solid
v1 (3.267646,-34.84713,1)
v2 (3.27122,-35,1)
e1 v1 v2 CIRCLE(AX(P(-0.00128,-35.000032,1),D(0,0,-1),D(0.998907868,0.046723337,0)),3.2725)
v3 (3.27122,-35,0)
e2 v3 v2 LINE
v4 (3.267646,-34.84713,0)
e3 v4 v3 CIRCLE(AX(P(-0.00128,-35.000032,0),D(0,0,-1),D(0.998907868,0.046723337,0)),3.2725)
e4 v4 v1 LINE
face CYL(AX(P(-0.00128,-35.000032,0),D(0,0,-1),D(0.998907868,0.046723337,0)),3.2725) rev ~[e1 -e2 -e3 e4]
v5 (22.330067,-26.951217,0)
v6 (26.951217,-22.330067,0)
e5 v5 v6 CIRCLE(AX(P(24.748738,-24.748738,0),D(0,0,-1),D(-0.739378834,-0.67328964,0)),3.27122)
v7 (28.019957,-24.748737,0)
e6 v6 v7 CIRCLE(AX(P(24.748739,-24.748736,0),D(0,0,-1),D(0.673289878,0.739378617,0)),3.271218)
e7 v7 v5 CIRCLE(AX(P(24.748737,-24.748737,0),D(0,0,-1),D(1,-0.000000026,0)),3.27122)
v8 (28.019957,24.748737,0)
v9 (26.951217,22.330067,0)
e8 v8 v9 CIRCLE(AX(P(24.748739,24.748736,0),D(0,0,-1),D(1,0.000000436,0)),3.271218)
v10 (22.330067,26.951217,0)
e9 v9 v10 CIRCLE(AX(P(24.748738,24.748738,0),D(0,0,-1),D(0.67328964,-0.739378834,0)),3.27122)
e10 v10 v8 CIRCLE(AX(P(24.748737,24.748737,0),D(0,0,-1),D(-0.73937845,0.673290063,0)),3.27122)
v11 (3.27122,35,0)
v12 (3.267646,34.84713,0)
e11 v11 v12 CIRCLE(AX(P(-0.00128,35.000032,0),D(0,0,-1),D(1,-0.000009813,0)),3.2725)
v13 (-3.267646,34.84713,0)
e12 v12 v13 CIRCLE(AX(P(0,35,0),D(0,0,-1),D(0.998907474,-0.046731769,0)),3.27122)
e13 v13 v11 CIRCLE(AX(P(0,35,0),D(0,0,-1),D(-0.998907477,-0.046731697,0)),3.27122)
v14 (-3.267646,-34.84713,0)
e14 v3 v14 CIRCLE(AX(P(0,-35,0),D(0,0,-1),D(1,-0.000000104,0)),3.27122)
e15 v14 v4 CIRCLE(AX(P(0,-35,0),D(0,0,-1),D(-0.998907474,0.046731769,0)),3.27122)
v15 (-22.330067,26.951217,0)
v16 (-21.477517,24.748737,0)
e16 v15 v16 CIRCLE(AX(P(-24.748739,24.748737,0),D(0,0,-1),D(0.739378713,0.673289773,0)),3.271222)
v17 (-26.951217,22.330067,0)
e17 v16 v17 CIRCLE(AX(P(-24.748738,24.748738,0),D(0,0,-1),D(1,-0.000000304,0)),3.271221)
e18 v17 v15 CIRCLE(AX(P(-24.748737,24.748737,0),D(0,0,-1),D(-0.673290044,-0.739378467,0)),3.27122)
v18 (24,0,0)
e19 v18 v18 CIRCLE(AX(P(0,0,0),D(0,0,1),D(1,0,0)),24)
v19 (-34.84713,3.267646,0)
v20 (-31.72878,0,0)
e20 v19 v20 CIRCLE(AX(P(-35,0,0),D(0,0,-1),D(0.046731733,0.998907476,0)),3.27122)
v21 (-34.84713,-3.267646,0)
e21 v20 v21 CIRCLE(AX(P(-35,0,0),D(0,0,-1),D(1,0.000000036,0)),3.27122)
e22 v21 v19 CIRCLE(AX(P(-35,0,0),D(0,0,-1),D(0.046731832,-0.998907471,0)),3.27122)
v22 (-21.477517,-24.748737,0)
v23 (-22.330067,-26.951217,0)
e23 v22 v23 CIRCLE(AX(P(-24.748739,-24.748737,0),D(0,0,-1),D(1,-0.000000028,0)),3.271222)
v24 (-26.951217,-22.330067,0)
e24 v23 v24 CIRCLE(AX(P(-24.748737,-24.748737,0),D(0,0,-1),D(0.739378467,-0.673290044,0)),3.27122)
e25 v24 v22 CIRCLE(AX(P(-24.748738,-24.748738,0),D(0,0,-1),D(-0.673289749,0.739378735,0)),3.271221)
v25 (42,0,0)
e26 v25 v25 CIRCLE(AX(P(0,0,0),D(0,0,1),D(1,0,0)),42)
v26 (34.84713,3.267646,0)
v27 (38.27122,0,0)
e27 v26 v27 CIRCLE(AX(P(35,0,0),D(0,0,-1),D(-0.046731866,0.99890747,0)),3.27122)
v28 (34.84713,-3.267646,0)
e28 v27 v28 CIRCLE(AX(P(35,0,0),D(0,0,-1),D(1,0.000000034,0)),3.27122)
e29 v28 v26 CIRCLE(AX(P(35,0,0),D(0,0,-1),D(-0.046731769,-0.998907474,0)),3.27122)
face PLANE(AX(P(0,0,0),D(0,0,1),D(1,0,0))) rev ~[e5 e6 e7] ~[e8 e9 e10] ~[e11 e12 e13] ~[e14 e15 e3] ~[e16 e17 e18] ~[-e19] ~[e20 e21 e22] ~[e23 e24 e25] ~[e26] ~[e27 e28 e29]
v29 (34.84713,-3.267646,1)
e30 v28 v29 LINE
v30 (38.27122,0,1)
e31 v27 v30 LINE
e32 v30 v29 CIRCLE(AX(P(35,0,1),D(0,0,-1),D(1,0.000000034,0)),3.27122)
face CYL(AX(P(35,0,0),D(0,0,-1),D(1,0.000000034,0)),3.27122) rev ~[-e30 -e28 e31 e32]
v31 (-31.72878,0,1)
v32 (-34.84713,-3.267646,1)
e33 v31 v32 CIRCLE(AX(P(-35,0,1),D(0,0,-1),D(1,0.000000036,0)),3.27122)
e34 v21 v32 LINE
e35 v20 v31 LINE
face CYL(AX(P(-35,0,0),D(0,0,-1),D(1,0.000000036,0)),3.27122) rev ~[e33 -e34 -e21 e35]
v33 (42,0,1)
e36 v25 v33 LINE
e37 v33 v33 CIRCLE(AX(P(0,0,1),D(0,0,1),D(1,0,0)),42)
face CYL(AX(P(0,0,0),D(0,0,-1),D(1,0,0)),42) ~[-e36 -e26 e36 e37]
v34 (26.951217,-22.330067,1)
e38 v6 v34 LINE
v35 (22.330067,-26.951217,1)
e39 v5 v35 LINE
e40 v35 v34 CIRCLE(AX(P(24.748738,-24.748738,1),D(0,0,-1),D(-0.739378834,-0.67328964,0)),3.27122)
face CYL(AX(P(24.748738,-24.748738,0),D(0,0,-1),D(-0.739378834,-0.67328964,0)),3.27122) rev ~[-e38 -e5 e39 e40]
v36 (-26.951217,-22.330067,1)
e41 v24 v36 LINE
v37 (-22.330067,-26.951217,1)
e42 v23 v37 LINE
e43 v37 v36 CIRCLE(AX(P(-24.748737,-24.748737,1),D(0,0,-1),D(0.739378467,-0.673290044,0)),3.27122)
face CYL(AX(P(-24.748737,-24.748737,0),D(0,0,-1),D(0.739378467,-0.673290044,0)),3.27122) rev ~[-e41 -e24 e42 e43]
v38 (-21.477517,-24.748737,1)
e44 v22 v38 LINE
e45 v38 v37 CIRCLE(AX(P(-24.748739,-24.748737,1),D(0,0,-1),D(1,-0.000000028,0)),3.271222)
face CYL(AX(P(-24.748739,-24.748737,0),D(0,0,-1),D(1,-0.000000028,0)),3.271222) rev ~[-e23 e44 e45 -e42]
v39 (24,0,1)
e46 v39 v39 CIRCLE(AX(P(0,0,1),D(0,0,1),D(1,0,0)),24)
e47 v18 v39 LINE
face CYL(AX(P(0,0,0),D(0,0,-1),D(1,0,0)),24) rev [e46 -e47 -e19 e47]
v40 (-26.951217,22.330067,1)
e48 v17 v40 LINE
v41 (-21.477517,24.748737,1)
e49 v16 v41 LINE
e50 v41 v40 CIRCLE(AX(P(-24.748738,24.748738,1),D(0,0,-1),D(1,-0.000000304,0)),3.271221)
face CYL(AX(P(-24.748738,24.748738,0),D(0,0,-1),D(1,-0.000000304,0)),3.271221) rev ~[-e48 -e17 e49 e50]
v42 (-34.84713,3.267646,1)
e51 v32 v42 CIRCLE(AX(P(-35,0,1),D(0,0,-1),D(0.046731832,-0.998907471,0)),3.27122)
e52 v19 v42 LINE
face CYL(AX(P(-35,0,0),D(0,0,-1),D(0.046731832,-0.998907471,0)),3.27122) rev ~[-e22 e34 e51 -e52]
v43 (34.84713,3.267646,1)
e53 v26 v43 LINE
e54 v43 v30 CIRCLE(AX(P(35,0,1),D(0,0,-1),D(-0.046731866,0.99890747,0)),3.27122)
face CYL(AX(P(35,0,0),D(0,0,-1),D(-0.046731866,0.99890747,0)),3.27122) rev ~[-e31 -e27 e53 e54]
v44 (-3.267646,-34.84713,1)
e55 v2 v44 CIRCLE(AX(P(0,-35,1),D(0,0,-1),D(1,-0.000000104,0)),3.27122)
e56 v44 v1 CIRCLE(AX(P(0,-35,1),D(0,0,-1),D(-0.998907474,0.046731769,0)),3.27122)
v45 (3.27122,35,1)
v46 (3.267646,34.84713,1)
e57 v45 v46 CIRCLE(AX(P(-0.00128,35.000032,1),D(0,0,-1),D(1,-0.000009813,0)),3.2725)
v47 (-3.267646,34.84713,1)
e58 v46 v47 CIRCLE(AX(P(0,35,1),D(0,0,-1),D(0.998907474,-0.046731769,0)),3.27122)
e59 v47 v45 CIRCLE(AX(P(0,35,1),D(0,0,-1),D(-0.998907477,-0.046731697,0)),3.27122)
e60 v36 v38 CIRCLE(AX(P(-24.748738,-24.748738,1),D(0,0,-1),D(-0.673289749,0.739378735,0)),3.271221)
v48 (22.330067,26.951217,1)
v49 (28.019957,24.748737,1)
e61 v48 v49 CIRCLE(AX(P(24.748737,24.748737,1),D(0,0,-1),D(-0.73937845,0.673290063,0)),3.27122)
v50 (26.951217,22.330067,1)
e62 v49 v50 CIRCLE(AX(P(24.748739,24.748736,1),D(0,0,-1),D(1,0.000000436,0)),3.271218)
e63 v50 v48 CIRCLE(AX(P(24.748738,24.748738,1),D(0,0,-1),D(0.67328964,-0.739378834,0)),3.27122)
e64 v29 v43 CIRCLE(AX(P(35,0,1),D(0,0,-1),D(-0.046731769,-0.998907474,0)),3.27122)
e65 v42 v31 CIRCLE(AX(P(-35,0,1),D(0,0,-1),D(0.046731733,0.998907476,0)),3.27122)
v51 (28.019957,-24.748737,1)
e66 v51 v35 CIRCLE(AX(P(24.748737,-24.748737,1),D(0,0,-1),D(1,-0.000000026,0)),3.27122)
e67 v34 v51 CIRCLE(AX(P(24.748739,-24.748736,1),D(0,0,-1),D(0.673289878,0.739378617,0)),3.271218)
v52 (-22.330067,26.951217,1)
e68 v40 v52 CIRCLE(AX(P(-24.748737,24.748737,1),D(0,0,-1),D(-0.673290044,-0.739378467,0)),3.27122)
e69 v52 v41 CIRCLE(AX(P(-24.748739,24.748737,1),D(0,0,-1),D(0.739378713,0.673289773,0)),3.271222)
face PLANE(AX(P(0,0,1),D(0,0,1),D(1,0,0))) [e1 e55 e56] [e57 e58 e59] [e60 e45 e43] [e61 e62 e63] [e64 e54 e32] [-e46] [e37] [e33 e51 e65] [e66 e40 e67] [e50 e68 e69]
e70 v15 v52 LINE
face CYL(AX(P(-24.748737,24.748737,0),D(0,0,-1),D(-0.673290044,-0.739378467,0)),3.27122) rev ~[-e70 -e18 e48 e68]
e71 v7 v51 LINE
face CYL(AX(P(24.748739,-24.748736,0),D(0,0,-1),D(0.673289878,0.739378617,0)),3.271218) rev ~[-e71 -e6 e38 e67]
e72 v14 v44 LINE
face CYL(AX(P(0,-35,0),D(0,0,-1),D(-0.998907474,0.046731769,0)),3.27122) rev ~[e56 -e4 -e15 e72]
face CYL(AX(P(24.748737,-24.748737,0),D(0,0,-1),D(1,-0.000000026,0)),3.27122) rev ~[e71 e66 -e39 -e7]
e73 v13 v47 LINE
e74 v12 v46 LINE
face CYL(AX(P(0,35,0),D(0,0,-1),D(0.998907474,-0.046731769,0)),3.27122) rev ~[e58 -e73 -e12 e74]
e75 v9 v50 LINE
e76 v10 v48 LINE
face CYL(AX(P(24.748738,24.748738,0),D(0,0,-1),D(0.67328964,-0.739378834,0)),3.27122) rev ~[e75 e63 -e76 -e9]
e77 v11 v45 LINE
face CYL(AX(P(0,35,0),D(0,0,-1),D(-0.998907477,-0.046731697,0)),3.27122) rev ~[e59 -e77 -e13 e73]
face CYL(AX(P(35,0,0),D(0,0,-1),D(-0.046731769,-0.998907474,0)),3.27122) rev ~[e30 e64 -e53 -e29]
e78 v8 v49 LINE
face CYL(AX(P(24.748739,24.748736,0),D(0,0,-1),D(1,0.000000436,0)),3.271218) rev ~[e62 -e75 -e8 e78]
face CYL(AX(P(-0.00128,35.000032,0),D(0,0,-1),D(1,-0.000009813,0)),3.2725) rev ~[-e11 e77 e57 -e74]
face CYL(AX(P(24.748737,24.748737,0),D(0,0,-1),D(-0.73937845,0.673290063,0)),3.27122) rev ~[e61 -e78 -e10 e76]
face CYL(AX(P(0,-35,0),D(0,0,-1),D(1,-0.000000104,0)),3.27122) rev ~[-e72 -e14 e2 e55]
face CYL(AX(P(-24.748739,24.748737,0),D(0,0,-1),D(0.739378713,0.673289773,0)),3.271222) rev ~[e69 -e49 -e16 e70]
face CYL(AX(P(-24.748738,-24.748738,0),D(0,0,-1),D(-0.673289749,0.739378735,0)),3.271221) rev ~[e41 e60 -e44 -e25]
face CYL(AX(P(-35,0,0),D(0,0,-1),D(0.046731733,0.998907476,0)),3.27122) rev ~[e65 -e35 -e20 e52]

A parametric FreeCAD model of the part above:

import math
import FreeCAD as App
import Part
import Sketcher
from FreeCAD import Vector

doc = App.newDocument("Part")
body = doc.addObject("PartDesign::Body", "Body")

sketch1 = doc.addObject("Sketcher::SketchObject", "Sketch")
body.addObject(sketch1)
sketch1.AttachmentSupport = (doc.XY_Plane, [""])
sketch1.MapMode = "FlatFace"
sketch1.addGeometry([
    Part.Circle(Vector(0, 0, 0), Vector(0, 0, 1), 42),
    Part.ArcOfCircle(Part.Circle(Vector(-24.75, -24.75, 0), Vector(0, 0, 1), 3.27), math.radians(132), math.radians(318)),
    Part.ArcOfCircle(Part.Circle(Vector(-24.75, -24.75, 0), Vector(0, 0, 1), 3.27), math.radians(0), math.radians(132)),
    Part.ArcOfCircle(Part.Circle(Vector(-24.75, -24.75, 0), Vector(0, 0, 1), 3.27), math.radians(-42), math.radians(0)),
    Part.ArcOfCircle(Part.Circle(Vector(0, -35, 0), Vector(0, 0, 1), 3.27), math.radians(177), math.radians(360)),
    Part.ArcOfCircle(Part.Circle(Vector(0, -35, 0), Vector(0, 0, 1), 3.27), math.radians(3), math.radians(177)),
    Part.ArcOfCircle(Part.Circle(Vector(0, -35, 0), Vector(0, 0, 1), 3.27), math.radians(0), math.radians(2.68)),
    Part.ArcOfCircle(Part.Circle(Vector(24.75, -24.75, 0), Vector(0, 0, 1), 3.27), math.radians(-138), math.radians(0)),
    Part.ArcOfCircle(Part.Circle(Vector(24.75, -24.75, 0), Vector(0, 0, 1), 3.27), math.radians(48), math.radians(222)),
    Part.ArcOfCircle(Part.Circle(Vector(24.75, -24.75, 0), Vector(0, 0, 1), 3.27), math.radians(0), math.radians(48)),
    Part.ArcOfCircle(Part.Circle(Vector(-35, 0, 0), Vector(0, 0, 1), 3.27), math.radians(87), math.radians(273)),
    Part.ArcOfCircle(Part.Circle(Vector(-35, 0, 0), Vector(0, 0, 1), 3.27), math.radians(0), math.radians(87)),
    Part.ArcOfCircle(Part.Circle(Vector(-35, 0, 0), Vector(0, 0, 1), 3.27), math.radians(-87), math.radians(0)),
    Part.ArcOfCircle(Part.Circle(Vector(-24.75, 24.75, 0), Vector(0, 0, 1), 3.27), math.radians(42), math.radians(228)),
    Part.ArcOfCircle(Part.Circle(Vector(-24.75, 24.75, 0), Vector(0, 0, 1), 3.27), math.radians(0), math.radians(42)),
    Part.ArcOfCircle(Part.Circle(Vector(-24.75, 24.75, 0), Vector(0, 0, 1), 3.27), math.radians(-132), math.radians(0)),
    Part.Circle(Vector(0, 0, 0), Vector(0, 0, 1), 24),
    Part.ArcOfCircle(Part.Circle(Vector(35, 0, 0), Vector(0, 0, 1), 3.27), math.radians(-93), math.radians(0)),
    Part.ArcOfCircle(Part.Circle(Vector(35, 0, 0), Vector(0, 0, 1), 3.27), math.radians(93), math.radians(267)),
    Part.ArcOfCircle(Part.Circle(Vector(35, 0, 0), Vector(0, 0, 1), 3.27), math.radians(0), math.radians(93)),
    Part.ArcOfCircle(Part.Circle(Vector(0, 35, 0), Vector(0, 0, 1), 3.27), math.radians(-2.68), math.radians(0)),
    Part.ArcOfCircle(Part.Circle(Vector(0, 35, 0), Vector(0, 0, 1), 3.27), math.radians(-177), math.radians(-3)),
    Part.ArcOfCircle(Part.Circle(Vector(0, 35, 0), Vector(0, 0, 1), 3.27), math.radians(0), math.radians(183)),
    Part.ArcOfCircle(Part.Circle(Vector(24.75, 24.75, 0), Vector(0, 0, 1), 3.27), math.radians(-48), math.radians(0)),
    Part.ArcOfCircle(Part.Circle(Vector(24.75, 24.75, 0), Vector(0, 0, 1), 3.27), math.radians(138), math.radians(312)),
    Part.ArcOfCircle(Part.Circle(Vector(24.75, 24.75, 0), Vector(0, 0, 1), 3.27), math.radians(0), math.radians(138)),
], False)
sketch1.addConstraint([
    Sketcher.Constraint("Tangent", 1, 1, 2, 2),
    Sketcher.Constraint("Tangent", 2, 1, 3, 2),
    Sketcher.Constraint("Tangent", 3, 1, 1, 2),
    Sketcher.Constraint("Tangent", 4, 1, 5, 2),
    Sketcher.Constraint("Coincident", 5, 1, 6, 2),
    Sketcher.Constraint("Coincident", 6, 1, 4, 2),
    Sketcher.Constraint("Tangent", 7, 1, 8, 2),
    Sketcher.Constraint("Tangent", 8, 1, 9, 2),
    Sketcher.Constraint("Tangent", 9, 1, 7, 2),
    Sketcher.Constraint("Tangent", 10, 1, 11, 2),
    Sketcher.Constraint("Tangent", 11, 1, 12, 2),
    Sketcher.Constraint("Tangent", 12, 1, 10, 2),
    Sketcher.Constraint("Tangent", 13, 1, 14, 2),
    Sketcher.Constraint("Tangent", 14, 1, 15, 2),
    Sketcher.Constraint("Tangent", 15, 1, 13, 2),
    Sketcher.Constraint("Tangent", 17, 1, 18, 2),
    Sketcher.Constraint("Tangent", 18, 1, 19, 2),
    Sketcher.Constraint("Tangent", 19, 1, 17, 2),
    Sketcher.Constraint("Coincident", 20, 1, 21, 2),
    Sketcher.Constraint("Tangent", 21, 1, 22, 2),
    Sketcher.Constraint("Coincident", 22, 1, 20, 2),
    Sketcher.Constraint("Tangent", 23, 1, 24, 2),
    Sketcher.Constraint("Tangent", 24, 1, 25, 2),
    Sketcher.Constraint("Tangent", 25, 1, 23, 2),
    Sketcher.Constraint("Coincident", 0, 3, -1, 1),
    Sketcher.Constraint("Coincident", 16, 3, -1, 1),
    Sketcher.Constraint("Equal", 3, 4),
    Sketcher.Constraint("Equal", 4, 5),
    Sketcher.Constraint("Equal", 5, 7),
    Sketcher.Constraint("Equal", 9, 10),
    Sketcher.Constraint("Equal", 12, 13),
    Sketcher.Constraint("Equal", 15, 17),
    Sketcher.Constraint("Equal", 6, 20),
    Sketcher.Constraint("Equal", 19, 21),
    Sketcher.Constraint("Equal", 21, 22),
    Sketcher.Constraint("Equal", 21, 23),
    Sketcher.Constraint("Symmetric", 7, 3, 13, 3, -1, 1),
    Sketcher.Constraint("Symmetric", 10, 3, 17, 3, -1, 1),
    Sketcher.Constraint("Symmetric", 4, 3, 21, 3, -1, 1),
    Sketcher.Constraint("Symmetric", 1, 3, 23, 3, -1, 1),
    Sketcher.Constraint("Symmetric", 1, 3, 7, 3, -2),
    Sketcher.Constraint("Symmetric", 4, 1, 5, 1, -2),
    Sketcher.Constraint("Symmetric", 12, 1, 17, 1, -2),
    Sketcher.Constraint("PointOnObject", 11, 1, -1),
    Sketcher.Constraint("PointOnObject", 19, 1, -1),
    Sketcher.Constraint("Horizontal", 9, 3, 2, 1),
    Sketcher.Constraint("Horizontal", 5, 3, 6, 1),
    Sketcher.Constraint("Horizontal", 3, 1, 7, 1),
    Sketcher.Constraint("Horizontal", 1, 1, 8, 1),
    Sketcher.Constraint("Horizontal", 2, 1, 9, 1),
    Sketcher.Constraint("Horizontal", 25, 3, 14, 1),
    Sketcher.Constraint("Horizontal", 10, 1, 18, 1),
    Sketcher.Constraint("Horizontal", 20, 1, 21, 1),
    Sketcher.Constraint("Horizontal", 21, 3, 22, 1),
    Sketcher.Constraint("Horizontal", 15, 1, 23, 1),
    Sketcher.Constraint("Horizontal", 13, 1, 24, 1),
    Sketcher.Constraint("Horizontal", 14, 1, 25, 1),
    Sketcher.Constraint("Vertical", 10, 1, 12, 1),
    Sketcher.Constraint("Vertical", 3, 1, 13, 1),
    Sketcher.Constraint("Vertical", 1, 1, 15, 1),
    Sketcher.Constraint("Vertical", 5, 1, 20, 1),
    Sketcher.Constraint("Diameter", 0, 84.0),
    Sketcher.Constraint("Diameter", 16, 48.0),
    Sketcher.Constraint("DistanceY", 4, 3, -1, 1, 35.0),
    Sketcher.Constraint("DistanceX", 10, 3, -1, 1, 35.0),
    Sketcher.Constraint("Radius", 6, 3.2725),
    Sketcher.Constraint("Radius", 1, 3.27122),
    Sketcher.Constraint("DistanceX", 1, 1, 2, 1, 5.4737),
    Sketcher.Constraint("DistanceX", 3, 3, -1, 1, 24.748739),
    Sketcher.Constraint("DistanceY", 8, 3, -1, 1, 24.748738),
    Sketcher.Constraint("DistanceY", 4, 1, -1, 1, 34.84713),
    Sketcher.Constraint("DistanceX", 10, 1, -1, 1, 34.84713),
    Sketcher.Constraint("DistanceX", 3, 1, 2, 1, 0.85255),
])
pad1 = doc.addObject("PartDesign::Pad", "Pad")
body.addObject(pad1)
pad1.Profile = sketch1
pad1.Length = 1

doc.recompute()
